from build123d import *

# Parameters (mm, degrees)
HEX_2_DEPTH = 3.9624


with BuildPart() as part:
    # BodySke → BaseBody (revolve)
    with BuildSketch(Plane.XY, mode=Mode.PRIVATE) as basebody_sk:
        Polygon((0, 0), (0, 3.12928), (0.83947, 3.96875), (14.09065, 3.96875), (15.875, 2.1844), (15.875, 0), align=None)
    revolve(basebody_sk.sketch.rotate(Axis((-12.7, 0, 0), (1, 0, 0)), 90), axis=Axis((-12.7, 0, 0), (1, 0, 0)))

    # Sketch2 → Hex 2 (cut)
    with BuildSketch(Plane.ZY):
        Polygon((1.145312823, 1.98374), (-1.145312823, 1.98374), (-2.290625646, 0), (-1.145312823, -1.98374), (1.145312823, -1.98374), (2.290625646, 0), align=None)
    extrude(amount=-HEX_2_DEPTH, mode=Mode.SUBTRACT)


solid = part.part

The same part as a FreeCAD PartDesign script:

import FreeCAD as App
import Part
import Sketcher
from FreeCAD import Vector
Q = App.Units.Quantity


def add_polygon(sketch, points):
    """Adds a closed chain of lines whose ends are joined by coincident constraints."""
    first, n = sketch.GeometryCount, len(points)
    for a, b in zip(points, points[1:] + points[:1]):
        sketch.addGeometry(Part.LineSegment(App.Vector(*a, 0), App.Vector(*b, 0)), False)
    for i in range(n):
        sketch.addConstraint(Sketcher.Constraint("Coincident", first + i, 2, first + (i + 1) % n, 1))

doc = App.newDocument("Part")
body = doc.addObject("PartDesign::Body", "Body")

sketch1 = body.newObject("Sketcher::SketchObject", "Sketch")
sketch1.AttachmentSupport = (doc.getObject("XY_Plane"), [""])
sketch1.MapMode = "FlatFace"
add_polygon(sketch1, [(0, 3.1), (0, 0), (15.9, 0), (15.9, 2.2), (14.1, 4), (0.8, 4)])
sketch1.addConstraint(Sketcher.Constraint("Vertical", 0))
sketch1.addConstraint(Sketcher.Constraint("Horizontal", 1))
sketch1.addConstraint(Sketcher.Constraint("Vertical", 2))
sketch1.addConstraint(Sketcher.Constraint("Horizontal", 4))
sketch1.addConstraint(Sketcher.Constraint("Coincident", 0, 2, -1, 1))
sketch1.addConstraint(Sketcher.Constraint("Perpendicular", 3, 5))
sketch1.addConstraint(Sketcher.Constraint("Angle", 3, Q("135 deg")))
sketch1.addConstraint(Sketcher.Constraint("DistanceX", 1, 1, 1, 2, Q("0.625 in")))
sketch1.addConstraint(Sketcher.Constraint("DistanceY", 2, 1, 2, 2, Q("0.086 in")))
sketch1.addConstraint(Sketcher.Constraint("DistanceX", 4, 2, 4, 1, Q("0.5217 in")))
sketch1.addConstraint(Sketcher.Constraint("DistanceY", 0, 2, 0, 1, Q("0.1232 in")))
revolution = body.newObject("PartDesign::Revolution", "Revolution")
revolution.Profile = sketch1
revolution.ReferenceAxis = (sketch1, ["H_Axis"])
revolution.Angle = 360

sketch2 = body.newObject("Sketcher::SketchObject", "Sketch001")
sketch2.AttachmentSupport = (doc.getObject("YZ_Plane"), [""])
sketch2.MapMode = "FlatFace"
add_polygon(sketch2, [(2, 1.1), (2, -1.1), (0, -2.3), (-2, -1.1), (-2, 1.1), (0, 2.3)])
sketch2.addConstraint(Sketcher.Constraint("Vertical", 0))
sketch2.addConstraint(Sketcher.Constraint("Vertical", 3))
sketch2.addConstraint(Sketcher.Constraint("Symmetric", 0, 2, 3, 2, -1, 1))
sketch2.addConstraint(Sketcher.Constraint("Symmetric", 1, 2, 4, 2, -1, 1))
sketch2.addConstraint(Sketcher.Constraint("PointOnObject", 1, 2, -2))
sketch2.addConstraint(Sketcher.Constraint("Parallel", 2, 5))
sketch2.addConstraint(Sketcher.Constraint("Horizontal", 0, 2, 2, 2))
sketch2.addConstraint(Sketcher.Constraint("Angle", 1, Q("-150 deg")))
sketch2.addConstraint(Sketcher.Constraint("DistanceX", -1, 1, 0, 2, Q("0.0781 in")))
sketch2.addConstraint(Sketcher.Constraint("DistanceY", 0, 2, 0, 1, Q("2.290626 mm")))
pocket1 = body.newObject("PartDesign::Pocket", "Pocket")
pocket1.Profile = sketch2
pocket1.Length = Q("0.156 in")
pocket1.Reversed = True

doc.recompute()
